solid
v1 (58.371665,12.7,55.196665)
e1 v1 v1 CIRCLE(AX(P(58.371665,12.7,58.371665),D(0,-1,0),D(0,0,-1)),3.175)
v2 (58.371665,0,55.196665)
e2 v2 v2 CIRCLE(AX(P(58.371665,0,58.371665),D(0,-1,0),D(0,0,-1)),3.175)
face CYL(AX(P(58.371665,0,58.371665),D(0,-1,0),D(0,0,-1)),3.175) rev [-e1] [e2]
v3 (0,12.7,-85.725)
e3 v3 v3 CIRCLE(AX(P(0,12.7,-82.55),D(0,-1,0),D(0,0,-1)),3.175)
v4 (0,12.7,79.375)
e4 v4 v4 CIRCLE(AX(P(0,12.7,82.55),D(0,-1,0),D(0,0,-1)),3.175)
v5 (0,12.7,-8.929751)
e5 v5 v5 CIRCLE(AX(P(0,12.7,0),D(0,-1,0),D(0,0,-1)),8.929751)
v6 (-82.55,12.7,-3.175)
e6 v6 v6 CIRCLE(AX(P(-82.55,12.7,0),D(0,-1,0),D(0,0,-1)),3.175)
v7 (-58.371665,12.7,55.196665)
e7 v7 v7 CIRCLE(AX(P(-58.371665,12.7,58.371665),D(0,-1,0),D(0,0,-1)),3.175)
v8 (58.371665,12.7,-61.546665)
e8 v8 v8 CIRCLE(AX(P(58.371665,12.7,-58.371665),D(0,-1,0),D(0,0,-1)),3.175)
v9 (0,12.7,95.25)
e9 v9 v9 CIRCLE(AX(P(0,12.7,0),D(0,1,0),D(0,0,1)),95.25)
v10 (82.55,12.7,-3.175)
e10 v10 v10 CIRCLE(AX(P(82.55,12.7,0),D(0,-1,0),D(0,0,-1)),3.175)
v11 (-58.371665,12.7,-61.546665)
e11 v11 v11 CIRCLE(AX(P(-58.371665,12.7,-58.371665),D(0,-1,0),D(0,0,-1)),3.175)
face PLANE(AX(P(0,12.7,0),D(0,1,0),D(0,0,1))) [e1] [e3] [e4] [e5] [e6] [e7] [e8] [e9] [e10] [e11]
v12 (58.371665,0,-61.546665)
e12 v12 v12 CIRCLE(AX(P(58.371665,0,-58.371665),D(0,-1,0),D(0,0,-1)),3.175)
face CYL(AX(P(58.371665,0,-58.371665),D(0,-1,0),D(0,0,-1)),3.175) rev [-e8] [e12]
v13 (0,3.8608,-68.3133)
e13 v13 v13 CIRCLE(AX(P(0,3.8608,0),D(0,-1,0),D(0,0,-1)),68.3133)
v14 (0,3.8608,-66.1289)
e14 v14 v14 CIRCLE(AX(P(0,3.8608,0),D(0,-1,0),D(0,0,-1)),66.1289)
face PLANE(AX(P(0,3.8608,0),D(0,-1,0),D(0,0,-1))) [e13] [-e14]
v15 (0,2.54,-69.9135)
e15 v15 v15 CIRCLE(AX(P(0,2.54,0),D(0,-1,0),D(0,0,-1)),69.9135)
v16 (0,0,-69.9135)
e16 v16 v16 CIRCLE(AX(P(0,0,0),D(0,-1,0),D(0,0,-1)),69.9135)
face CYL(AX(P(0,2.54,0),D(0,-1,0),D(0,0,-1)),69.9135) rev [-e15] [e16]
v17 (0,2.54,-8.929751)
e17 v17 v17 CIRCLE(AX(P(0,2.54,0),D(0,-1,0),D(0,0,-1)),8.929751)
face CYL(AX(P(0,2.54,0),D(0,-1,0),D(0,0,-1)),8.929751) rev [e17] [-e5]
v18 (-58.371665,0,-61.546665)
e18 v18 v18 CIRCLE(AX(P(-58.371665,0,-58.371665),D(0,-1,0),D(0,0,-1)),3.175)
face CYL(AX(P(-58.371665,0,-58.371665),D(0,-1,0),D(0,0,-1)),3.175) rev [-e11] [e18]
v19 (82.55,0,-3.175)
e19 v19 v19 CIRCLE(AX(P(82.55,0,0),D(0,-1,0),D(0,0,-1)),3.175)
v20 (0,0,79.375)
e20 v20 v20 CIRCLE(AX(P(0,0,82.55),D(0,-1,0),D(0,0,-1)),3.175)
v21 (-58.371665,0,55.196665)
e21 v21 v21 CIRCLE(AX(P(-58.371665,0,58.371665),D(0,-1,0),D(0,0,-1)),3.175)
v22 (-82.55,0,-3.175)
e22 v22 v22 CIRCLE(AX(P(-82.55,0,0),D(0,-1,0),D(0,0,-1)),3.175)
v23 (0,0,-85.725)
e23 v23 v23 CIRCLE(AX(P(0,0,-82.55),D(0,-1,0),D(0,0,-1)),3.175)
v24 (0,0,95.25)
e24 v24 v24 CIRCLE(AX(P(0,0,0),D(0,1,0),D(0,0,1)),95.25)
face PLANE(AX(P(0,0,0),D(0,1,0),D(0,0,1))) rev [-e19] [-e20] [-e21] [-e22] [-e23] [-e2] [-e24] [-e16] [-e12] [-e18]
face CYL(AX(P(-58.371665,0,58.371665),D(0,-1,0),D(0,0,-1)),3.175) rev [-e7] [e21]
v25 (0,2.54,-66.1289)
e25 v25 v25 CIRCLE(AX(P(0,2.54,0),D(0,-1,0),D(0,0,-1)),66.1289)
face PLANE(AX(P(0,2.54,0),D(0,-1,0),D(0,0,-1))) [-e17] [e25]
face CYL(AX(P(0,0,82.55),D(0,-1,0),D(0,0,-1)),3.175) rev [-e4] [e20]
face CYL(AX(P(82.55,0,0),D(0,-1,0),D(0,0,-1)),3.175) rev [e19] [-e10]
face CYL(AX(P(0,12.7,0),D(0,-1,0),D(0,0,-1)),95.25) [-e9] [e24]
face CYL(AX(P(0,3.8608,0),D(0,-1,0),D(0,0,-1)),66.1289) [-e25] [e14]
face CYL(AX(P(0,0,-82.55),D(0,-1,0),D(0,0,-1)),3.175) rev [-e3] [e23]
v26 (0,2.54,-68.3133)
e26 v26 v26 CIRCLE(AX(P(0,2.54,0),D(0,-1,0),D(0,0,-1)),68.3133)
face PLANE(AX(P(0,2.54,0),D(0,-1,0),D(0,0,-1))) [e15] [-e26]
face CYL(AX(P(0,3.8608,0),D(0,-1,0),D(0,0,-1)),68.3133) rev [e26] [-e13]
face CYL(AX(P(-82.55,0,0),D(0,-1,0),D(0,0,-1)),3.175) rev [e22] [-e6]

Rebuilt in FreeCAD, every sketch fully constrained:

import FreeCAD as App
import Part
import Sketcher
Q = App.Units.Quantity

doc = App.newDocument("Part")
params = doc.addObject("Spreadsheet::Sheet", "Params")
for row, (alias, value) in enumerate([
    ("sketch1_diameter", "7.5 in"),
    ("pad1_length", "0.5 in"),
    ("sketch2_diameter", "0.25 in"),
    ("hole_diameter", "0.25 in"),
    ("sketch3_diameter", "5.505 in"),
    ("pocket1_length", "0.1 in"),
    ("sketch4_diameter", "5.379 in"),
    ("sketch4_diameter2", "5.207 in"),
    ("pocket2_length", "0.052 in"),
    ("hole2_diameter", "17.859502 mm"),
], start=1):
    params.set(f"A{row}", alias)
    params.set(f"B{row}", "=" + value)
    params.setAlias(f"B{row}", alias)

body = doc.addObject("PartDesign::Body", "Body")

# Sketch on XZ plane
sketch1 = body.newObject("Sketcher::SketchObject", "Sketch")
sketch1.AttachmentSupport = (doc.getObject("XZ_Plane"), [""])
sketch1.MapMode = "FlatFace"
sketch1.addGeometry(Part.Circle(App.Vector(0, 0, 0), App.Vector(0, 0, 1), 95), False)
sketch1.addConstraint([
    Sketcher.Constraint("Coincident", 0, 3, -1, 1),
    Sketcher.Constraint("Diameter", 0, Q("7.5 in")),
])
sketch1.setExpression("Constraints[1]", "Params.sketch1_diameter")
pad1 = body.newObject("PartDesign::Pad", "Pad")
pad1.Profile = sketch1
pad1.setExpression("Length", "Params.pad1_length")
pad1.Reversed = True

# Sketch on XZ plane
sketch2 = body.newObject("Sketcher::SketchObject", "Sketch001")
sketch2.AttachmentSupport = (doc.getObject("XZ_Plane"), [""])
sketch2.MapMode = "FlatFace"
sketch2.addGeometry(Part.Circle(App.Vector(0, 82.5, 0), App.Vector(0, 0, 1), 3.2), False)
sketch2.addConstraint([
    Sketcher.Constraint("PointOnObject", 0, 3, -2),
    Sketcher.Constraint("Diameter", 0, Q("0.25 in")),
    Sketcher.Constraint("DistanceY", -1, 1, 0, 3, Q("3.25 in")),
])
sketch2.setExpression("Constraints[1]", "Params.sketch2_diameter")
doc.recompute()
hole = body.newObject("PartDesign::Hole", "Hole")
hole.Profile = sketch2
hole.ThreadType = "None"
hole.setExpression("Diameter", "Params.hole_diameter")
hole.DepthType = "ThroughAll"
doc.recompute()

polarpattern = body.newObject("PartDesign::PolarPattern", "PolarPattern")
polarpattern.Originals = [hole]
polarpattern.Axis = (doc.getObject("Y_Axis"), [""])
polarpattern.Angle = 360
polarpattern.Occurrences = 8
body.Tip = polarpattern

# Sketch on XZ plane
sketch3 = body.newObject("Sketcher::SketchObject", "Sketch002")
sketch3.AttachmentSupport = (doc.getObject("XZ_Plane"), [""])
sketch3.MapMode = "FlatFace"
sketch3.addGeometry(Part.Circle(App.Vector(0, 0, 0), App.Vector(0, 0, 1), 70), False)
sketch3.addConstraint([
    Sketcher.Constraint("Coincident", 0, 3, -1, 1),
    Sketcher.Constraint("Diameter", 0, Q("5.505 in")),
])
sketch3.setExpression("Constraints[1]", "Params.sketch3_diameter")
pocket1 = body.newObject("PartDesign::Pocket", "Pocket")
pocket1.Profile = sketch3
pocket1.setExpression("Length", "Params.pocket1_length")

# Sketch on XZ plane
sketch4 = body.newObject("Sketcher::SketchObject", "Sketch003")
sketch4.AttachmentSupport = (doc.getObject("XZ_Plane"), [""])
sketch4.MapMode = "FlatFace"
sketch4.AttachmentOffset = App.Placement(App.Vector(0, 0, -0.1 * 25.4), App.Rotation())
sketch4.addGeometry([
    Part.Circle(App.Vector(0, 0, 0), App.Vector(0, 0, 1), 68),
    Part.Circle(App.Vector(0, 0, 0), App.Vector(0, 0, 1), 66),
], False)
sketch4.addConstraint([
    Sketcher.Constraint("Coincident", 0, 3, -1, 1),
    Sketcher.Constraint("Coincident", 1, 3, -1, 1),
    Sketcher.Constraint("Diameter", 0, Q("5.379 in")),
    Sketcher.Constraint("Diameter", 1, Q("5.207 in")),
])
sketch4.setExpression("Constraints[2]", "Params.sketch4_diameter")
sketch4.setExpression("Constraints[3]", "Params.sketch4_diameter2")
pocket2 = body.newObject("PartDesign::Pocket", "Pocket001")
pocket2.Profile = sketch4
pocket2.setExpression("Length", "Params.pocket2_length")

# Sketch on XZ plane
sketch5 = body.newObject("Sketcher::SketchObject", "Sketch004")
sketch5.AttachmentSupport = (doc.getObject("XZ_Plane"), [""])
sketch5.MapMode = "FlatFace"
sketch5.AttachmentOffset = App.Placement(App.Vector(0, 0, -0.1 * 25.4), App.Rotation())
sketch5.addGeometry(Part.Circle(App.Vector(0, 0, 0), App.Vector(0, 0, 1), 9), False)
sketch5.addConstraint([
    Sketcher.Constraint("Coincident", 0, 3, -1, 1),
    Sketcher.Constraint("Diameter", 0, 17.859502),
])
doc.recompute()
hole2 = body.newObject("PartDesign::Hole", "Hole001")
hole2.Profile = sketch5
hole2.ThreadType = "None"
hole2.setExpression("Diameter", "Params.hole2_diameter")
hole2.DepthType = "ThroughAll"

doc.recompute()
